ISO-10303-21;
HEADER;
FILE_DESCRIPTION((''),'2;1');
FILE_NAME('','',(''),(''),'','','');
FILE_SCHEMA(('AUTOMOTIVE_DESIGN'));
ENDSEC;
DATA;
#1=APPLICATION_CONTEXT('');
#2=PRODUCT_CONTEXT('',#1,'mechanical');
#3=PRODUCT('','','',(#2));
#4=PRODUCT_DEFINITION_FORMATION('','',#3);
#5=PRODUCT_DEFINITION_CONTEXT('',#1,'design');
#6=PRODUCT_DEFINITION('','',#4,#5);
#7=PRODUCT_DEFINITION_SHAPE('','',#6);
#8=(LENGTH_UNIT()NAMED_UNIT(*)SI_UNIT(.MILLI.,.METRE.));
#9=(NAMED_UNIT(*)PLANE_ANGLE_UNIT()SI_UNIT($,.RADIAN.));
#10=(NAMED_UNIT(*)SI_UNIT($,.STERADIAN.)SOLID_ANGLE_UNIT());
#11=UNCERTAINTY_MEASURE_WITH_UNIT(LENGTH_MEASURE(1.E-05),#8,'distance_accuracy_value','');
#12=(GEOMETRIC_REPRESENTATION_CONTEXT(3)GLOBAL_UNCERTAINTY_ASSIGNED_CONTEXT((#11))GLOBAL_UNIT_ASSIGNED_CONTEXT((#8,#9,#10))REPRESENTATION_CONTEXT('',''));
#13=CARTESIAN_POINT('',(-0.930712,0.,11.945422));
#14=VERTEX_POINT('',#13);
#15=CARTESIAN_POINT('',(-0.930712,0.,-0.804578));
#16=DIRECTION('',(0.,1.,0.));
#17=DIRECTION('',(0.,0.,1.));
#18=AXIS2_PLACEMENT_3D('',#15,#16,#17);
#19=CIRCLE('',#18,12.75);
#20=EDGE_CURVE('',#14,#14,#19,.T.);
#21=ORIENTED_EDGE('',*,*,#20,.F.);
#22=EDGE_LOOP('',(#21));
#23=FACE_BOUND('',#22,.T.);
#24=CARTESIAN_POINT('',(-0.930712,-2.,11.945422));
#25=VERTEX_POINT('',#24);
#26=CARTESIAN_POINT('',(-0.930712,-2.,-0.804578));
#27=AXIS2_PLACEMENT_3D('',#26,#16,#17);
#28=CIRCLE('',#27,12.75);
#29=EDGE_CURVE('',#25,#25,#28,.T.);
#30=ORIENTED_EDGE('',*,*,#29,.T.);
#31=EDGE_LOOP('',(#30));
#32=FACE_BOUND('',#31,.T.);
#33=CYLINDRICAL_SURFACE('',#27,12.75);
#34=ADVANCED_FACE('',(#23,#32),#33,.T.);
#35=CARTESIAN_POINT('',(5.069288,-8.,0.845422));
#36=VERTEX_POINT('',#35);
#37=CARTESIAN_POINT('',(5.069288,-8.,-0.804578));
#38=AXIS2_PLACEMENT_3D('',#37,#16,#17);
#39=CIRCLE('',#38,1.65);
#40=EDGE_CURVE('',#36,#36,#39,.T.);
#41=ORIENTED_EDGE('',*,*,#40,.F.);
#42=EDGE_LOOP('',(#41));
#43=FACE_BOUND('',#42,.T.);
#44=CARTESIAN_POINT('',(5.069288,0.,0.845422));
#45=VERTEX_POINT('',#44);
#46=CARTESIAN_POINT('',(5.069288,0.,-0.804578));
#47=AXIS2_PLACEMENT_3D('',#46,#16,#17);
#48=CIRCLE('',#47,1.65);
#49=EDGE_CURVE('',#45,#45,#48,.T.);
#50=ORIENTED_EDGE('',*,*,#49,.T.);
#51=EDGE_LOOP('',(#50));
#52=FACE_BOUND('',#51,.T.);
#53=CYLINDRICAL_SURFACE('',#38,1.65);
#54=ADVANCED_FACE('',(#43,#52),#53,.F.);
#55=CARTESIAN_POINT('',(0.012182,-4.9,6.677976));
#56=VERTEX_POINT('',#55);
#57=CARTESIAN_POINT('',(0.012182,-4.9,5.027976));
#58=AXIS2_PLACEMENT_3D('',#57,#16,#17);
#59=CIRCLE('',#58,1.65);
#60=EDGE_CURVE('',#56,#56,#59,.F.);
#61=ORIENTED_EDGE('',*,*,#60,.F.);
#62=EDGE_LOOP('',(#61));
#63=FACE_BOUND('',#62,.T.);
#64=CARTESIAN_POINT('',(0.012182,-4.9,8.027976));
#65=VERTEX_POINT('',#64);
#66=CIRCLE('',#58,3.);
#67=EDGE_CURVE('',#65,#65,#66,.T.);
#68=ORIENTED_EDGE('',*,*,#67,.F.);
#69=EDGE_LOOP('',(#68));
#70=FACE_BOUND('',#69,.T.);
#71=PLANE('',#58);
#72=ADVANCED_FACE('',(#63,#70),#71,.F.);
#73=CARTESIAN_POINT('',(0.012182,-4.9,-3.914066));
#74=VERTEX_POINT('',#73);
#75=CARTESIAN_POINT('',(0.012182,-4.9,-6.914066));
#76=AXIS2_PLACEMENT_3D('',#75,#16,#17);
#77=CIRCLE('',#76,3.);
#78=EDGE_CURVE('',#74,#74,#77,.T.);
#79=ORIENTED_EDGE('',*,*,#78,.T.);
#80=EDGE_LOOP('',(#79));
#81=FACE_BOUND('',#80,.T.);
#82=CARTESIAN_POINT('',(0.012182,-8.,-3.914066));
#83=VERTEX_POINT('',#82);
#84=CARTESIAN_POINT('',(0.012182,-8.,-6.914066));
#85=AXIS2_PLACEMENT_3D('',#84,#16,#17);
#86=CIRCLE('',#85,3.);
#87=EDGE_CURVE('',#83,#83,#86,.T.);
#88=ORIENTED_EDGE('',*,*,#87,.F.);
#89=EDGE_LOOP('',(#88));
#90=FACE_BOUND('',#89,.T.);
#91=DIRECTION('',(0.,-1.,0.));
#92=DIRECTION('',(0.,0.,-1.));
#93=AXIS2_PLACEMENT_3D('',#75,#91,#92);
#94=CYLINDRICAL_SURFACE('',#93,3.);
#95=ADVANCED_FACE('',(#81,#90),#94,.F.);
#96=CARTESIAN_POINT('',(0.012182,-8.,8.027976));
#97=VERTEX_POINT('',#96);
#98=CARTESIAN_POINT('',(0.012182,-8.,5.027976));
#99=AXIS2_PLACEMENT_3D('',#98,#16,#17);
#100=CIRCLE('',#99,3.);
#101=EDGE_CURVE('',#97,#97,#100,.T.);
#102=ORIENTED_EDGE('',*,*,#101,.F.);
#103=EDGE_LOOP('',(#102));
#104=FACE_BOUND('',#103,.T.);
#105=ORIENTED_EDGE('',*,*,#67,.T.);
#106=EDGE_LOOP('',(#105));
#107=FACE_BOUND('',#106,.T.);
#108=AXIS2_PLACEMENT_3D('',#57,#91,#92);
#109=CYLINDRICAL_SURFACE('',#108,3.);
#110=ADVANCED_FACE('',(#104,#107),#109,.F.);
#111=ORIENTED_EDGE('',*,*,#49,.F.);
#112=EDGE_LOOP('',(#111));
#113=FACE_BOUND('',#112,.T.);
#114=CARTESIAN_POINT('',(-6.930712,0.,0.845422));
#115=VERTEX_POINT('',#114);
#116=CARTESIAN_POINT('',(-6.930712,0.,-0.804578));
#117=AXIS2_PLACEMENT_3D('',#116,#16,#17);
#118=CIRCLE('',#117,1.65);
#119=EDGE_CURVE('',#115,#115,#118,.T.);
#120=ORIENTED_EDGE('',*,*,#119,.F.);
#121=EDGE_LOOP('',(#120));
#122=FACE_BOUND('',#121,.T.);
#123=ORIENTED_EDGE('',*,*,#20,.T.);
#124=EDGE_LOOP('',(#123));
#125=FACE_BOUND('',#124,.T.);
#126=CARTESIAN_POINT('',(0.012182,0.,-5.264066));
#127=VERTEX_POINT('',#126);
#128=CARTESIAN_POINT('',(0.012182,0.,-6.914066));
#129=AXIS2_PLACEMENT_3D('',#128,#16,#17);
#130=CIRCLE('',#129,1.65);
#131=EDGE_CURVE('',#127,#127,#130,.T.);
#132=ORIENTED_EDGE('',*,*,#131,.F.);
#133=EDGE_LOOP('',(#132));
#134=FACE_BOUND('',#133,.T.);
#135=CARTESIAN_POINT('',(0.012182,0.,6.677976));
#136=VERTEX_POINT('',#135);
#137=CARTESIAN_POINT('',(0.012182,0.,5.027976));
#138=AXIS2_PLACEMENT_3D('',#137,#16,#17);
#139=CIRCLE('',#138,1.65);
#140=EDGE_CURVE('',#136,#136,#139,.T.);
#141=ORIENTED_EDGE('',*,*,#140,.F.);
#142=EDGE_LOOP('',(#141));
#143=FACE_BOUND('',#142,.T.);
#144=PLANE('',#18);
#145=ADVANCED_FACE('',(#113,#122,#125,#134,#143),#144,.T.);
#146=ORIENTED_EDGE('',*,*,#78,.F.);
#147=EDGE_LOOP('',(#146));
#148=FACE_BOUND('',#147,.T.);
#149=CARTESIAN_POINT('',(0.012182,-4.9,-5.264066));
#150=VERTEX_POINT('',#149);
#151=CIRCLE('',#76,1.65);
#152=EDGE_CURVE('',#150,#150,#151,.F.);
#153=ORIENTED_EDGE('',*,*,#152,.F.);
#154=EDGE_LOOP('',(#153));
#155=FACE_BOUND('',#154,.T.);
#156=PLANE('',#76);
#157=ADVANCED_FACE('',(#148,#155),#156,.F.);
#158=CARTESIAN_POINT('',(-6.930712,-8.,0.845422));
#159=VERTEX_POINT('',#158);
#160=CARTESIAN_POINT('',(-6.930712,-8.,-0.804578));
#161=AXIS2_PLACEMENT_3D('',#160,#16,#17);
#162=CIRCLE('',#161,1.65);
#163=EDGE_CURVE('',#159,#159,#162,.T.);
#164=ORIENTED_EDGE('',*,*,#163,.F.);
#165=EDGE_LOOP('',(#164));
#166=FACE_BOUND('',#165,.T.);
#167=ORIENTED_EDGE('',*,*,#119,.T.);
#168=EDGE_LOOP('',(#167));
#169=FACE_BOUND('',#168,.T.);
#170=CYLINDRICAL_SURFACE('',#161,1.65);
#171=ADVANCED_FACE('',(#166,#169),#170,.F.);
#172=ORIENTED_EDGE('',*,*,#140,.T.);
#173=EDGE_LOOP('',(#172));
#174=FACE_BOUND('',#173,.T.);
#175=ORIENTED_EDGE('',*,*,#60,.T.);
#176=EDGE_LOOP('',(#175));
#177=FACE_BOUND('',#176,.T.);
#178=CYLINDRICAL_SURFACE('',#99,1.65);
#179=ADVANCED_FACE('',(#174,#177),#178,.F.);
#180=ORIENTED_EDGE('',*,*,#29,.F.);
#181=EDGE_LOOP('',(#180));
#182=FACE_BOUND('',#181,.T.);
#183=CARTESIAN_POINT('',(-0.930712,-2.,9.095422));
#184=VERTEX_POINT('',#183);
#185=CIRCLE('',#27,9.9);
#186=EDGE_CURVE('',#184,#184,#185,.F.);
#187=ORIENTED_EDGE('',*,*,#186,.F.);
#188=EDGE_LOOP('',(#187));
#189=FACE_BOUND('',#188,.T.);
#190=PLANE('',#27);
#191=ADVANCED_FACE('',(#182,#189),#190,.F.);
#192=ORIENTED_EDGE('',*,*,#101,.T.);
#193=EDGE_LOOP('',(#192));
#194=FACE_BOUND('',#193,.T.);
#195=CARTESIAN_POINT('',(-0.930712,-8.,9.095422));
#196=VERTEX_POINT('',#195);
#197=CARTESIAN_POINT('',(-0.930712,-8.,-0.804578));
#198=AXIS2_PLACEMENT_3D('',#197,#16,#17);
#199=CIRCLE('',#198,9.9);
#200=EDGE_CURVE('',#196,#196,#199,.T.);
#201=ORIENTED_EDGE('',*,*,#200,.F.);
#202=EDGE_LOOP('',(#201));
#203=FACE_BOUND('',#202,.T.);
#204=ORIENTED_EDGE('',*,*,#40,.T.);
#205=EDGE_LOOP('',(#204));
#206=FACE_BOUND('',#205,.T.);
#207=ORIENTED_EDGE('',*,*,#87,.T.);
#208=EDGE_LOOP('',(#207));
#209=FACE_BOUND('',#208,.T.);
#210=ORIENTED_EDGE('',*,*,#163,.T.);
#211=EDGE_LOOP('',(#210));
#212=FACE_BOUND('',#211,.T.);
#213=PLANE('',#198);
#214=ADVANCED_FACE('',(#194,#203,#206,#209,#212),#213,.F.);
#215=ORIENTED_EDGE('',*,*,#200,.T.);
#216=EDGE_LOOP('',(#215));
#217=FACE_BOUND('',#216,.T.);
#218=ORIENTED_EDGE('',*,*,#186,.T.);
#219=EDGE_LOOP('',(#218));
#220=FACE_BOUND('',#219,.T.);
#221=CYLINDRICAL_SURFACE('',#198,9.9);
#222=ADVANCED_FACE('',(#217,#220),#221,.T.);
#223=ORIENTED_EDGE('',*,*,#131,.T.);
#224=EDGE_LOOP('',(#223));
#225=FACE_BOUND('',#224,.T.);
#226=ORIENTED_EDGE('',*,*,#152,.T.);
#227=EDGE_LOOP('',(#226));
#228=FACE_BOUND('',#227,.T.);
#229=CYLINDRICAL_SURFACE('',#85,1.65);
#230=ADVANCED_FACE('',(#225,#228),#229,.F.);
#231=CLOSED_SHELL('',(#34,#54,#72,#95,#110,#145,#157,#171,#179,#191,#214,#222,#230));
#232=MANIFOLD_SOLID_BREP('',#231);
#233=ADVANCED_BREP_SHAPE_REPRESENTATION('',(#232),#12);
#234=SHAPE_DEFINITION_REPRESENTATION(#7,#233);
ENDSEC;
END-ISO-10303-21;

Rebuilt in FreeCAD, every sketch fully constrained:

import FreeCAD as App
import Part
import Sketcher
from FreeCAD import Vector
Q = App.Units.Quantity

doc = App.newDocument("Part")
body = doc.addObject("PartDesign::Body", "Body")

# Sketch on XZ plane
sketch1 = body.newObject("Sketcher::SketchObject", "Sketch")
sketch1.AttachmentSupport = (doc.getObject("XZ_Plane"), [""])
sketch1.MapMode = "FlatFace"
sketch1.addGeometry(Part.Circle(Vector(-0.930712, -0.804578, 0), Vector(0, 0, 1), 9.9), False)
sketch1.addConstraint([
    Sketcher.Constraint("Diameter", 0, Q("19.8 mm")),
    Sketcher.Constraint("DistanceY", 0, 3, -1, 1, Q("0.804578 mm")),
    Sketcher.Constraint("DistanceX", 0, 3, -1, 1, Q("0.930712 mm")),
])
pad1 = body.newObject("PartDesign::Pad", "Pad")
pad1.Profile = sketch1
pad1.Length = 8

# Sketch on XZ plane
sketch2 = body.newObject("Sketcher::SketchObject", "Sketch001")
sketch2.AttachmentSupport = (doc.getObject("XZ_Plane"), [""])
sketch2.MapMode = "FlatFace"
sketch2.addGeometry(Part.Circle(Vector(-0.930712, -0.804578, 0), Vector(0, 0, 1), 12.75), False)
sketch2.addConstraint([
    Sketcher.Constraint("Diameter", 0, Q("25.5 mm")),
    Sketcher.Constraint("DistanceY", 0, 3, -1, 1, Q("0.804578 mm")),
    Sketcher.Constraint("DistanceX", 0, 3, -1, 1, Q("0.930712 mm")),
])
pad2 = body.newObject("PartDesign::Pad", "Pad001")
pad2.Profile = sketch2
pad2.Length = 2

# Sketch on XZ plane
sketch3 = body.newObject("Sketcher::SketchObject", "Sketch002")
sketch3.AttachmentSupport = (doc.getObject("XZ_Plane"), [""])
sketch3.MapMode = "FlatFace"
sketch3.addGeometry([
    Part.Circle(Vector(0.012182, -6.914066, 0), Vector(0, 0, 1), 1.65),
    Part.Circle(Vector(0.012182, 5.027976, 0), Vector(0, 0, 1), 1.65),
    Part.Circle(Vector(-6.930712, -0.804578, 0), Vector(0, 0, 1), 1.65),
    Part.Circle(Vector(5.069288, -0.804578, 0), Vector(0, 0, 1), 1.65),
], False)
sketch3.addConstraint([
    Sketcher.Constraint("Equal", 0, 1),
    Sketcher.Constraint("Equal", 1, 2),
    Sketcher.Constraint("Equal", 2, 3),
    Sketcher.Constraint("Horizontal", 2, 3, 3, 3),
    Sketcher.Constraint("Vertical", 0, 3, 1, 3),
    Sketcher.Constraint("Diameter", 0, Q("3.3 mm")),
    Sketcher.Constraint("DistanceX", 2, 3, 3, 3, Q("12 mm")),
    Sketcher.Constraint("DistanceX", -1, 1, 0, 3, Q("0.012182 mm")),
    Sketcher.Constraint("DistanceY", 2, 3, -1, 1, Q("0.804578 mm")),
    Sketcher.Constraint("DistanceY", 0, 3, 1, 3, Q("11.942042 mm")),
    Sketcher.Constraint("DistanceY", 0, 3, -1, 1, Q("6.914066 mm")),
    Sketcher.Constraint("DistanceX", 2, 3, -1, 1, Q("6.930712 mm")),
])
pocket1 = body.newObject("PartDesign::Pocket", "Pocket")
pocket1.Profile = sketch3
pocket1.Type = "ThroughAll"
pocket1.Reversed = True

# Sketch on XZ plane
sketch4 = body.newObject("Sketcher::SketchObject", "Sketch003")
sketch4.AttachmentSupport = (doc.getObject("XZ_Plane"), [""])
sketch4.MapMode = "FlatFace"
sketch4.AttachmentOffset = App.Placement(Vector(0, 0, 8), App.Rotation())
sketch4.addGeometry([
    Part.Circle(Vector(0.012182, -6.914066, 0), Vector(0, 0, 1), 3),
    Part.Circle(Vector(0.012182, 5.027976, 0), Vector(0, 0, 1), 3),
], False)
sketch4.addConstraint([
    Sketcher.Constraint("Equal", 0, 1),
    Sketcher.Constraint("Vertical", 0, 3, 1, 3),
    Sketcher.Constraint("Diameter", 0, Q("6 mm")),
    Sketcher.Constraint("DistanceX", -1, 1, 0, 3, Q("0.012182 mm")),
    Sketcher.Constraint("DistanceY", 0, 3, 1, 3, Q("11.942042 mm")),
    Sketcher.Constraint("DistanceY", 0, 3, -1, 1, Q("6.914066 mm")),
])
pocket2 = body.newObject("PartDesign::Pocket", "Pocket001")
pocket2.Profile = sketch4
pocket2.Length = 3.1

doc.recompute()
